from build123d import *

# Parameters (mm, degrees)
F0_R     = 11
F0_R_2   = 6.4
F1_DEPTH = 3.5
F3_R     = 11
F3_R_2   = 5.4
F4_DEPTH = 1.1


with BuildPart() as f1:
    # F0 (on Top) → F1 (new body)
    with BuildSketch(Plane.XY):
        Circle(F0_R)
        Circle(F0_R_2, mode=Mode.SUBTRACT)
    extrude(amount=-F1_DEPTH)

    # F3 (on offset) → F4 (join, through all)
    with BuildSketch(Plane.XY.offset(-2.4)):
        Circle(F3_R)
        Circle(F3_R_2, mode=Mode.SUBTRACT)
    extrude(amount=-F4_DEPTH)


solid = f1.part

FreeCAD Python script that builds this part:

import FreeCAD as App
import Part
import Sketcher
Q = App.Units.Quantity

doc = App.newDocument("Part")
body = doc.addObject("PartDesign::Body", "Body")

# Sketch on XY plane
sketch1 = doc.addObject("Sketcher::SketchObject", "Sketch")
body.addObject(sketch1)
sketch1.AttachmentSupport = (doc.XY_Plane, [""])
sketch1.MapMode = "FlatFace"
sketch1.addGeometry([
    Part.Circle(App.Vector(0, 0, 0), App.Vector(0, 0, 1), 11),
    Part.Circle(App.Vector(0, 0, 0), App.Vector(0, 0, 1), 6.4),
], False)
sketch1.addConstraint([
    Sketcher.Constraint("Coincident", 0, 3, -1, 1),
    Sketcher.Constraint("Coincident", 1, 3, -1, 1),
    Sketcher.Constraint("Diameter", 0, Q("22 mm")),
    Sketcher.Constraint("Diameter", 1, Q("12.8 mm")),
])
pad1 = doc.addObject("PartDesign::Pad", "Pad")
body.addObject(pad1)
pad1.Profile = sketch1
pad1.Length = 3.5
pad1.Reversed = True

# Sketch on XY plane
sketch2 = doc.addObject("Sketcher::SketchObject", "Sketch001")
body.addObject(sketch2)
sketch2.AttachmentSupport = (doc.XY_Plane, [""])
sketch2.MapMode = "FlatFace"
sketch2.AttachmentOffset = App.Placement(App.Vector(0, 0, -2.4), App.Rotation())
sketch2.addGeometry([
    Part.Circle(App.Vector(0, 0, 0), App.Vector(0, 0, 1), 11),
    Part.Circle(App.Vector(0, 0, 0), App.Vector(0, 0, 1), 5.4),
], False)
sketch2.addConstraint([
    Sketcher.Constraint("Coincident", 0, 3, -1, 1),
    Sketcher.Constraint("Coincident", 1, 3, -1, 1),
    Sketcher.Constraint("Diameter", 0, Q("22 mm")),
    Sketcher.Constraint("Diameter", 1, Q("10.8 mm")),
])
pad2 = doc.addObject("PartDesign::Pad", "Pad001")
body.addObject(pad2)
pad2.Profile = sketch2
pad2.Length = 1.1
pad2.Reversed = True

doc.recompute()
